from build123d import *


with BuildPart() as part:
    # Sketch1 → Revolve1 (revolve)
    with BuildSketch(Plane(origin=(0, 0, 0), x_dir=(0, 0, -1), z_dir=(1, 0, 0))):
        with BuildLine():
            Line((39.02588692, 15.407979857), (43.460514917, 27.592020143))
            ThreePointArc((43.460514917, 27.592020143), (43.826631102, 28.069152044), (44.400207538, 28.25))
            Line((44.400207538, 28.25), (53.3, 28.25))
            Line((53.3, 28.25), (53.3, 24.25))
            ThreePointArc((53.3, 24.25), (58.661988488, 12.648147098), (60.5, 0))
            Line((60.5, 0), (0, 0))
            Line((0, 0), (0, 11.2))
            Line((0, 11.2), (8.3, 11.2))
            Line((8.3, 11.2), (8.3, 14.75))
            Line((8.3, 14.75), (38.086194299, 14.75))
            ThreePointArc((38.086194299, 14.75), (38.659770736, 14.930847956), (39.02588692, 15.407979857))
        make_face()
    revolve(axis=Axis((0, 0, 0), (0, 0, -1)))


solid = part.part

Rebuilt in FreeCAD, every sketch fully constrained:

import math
import FreeCAD as App
import Part
import Sketcher
from FreeCAD import Vector
Q = App.Units.Quantity

doc = App.newDocument("Part")
body = doc.addObject("PartDesign::Body", "Body")

sketch1 = doc.addObject("Sketcher::SketchObject", "Sketch")
body.addObject(sketch1)
sketch1.AttachmentSupport = (doc.YZ_Plane, [""])
sketch1.MapMode = "FlatFace"
sketch1.addGeometry([
    Part.LineSegment(Vector(27.6, -43.5, 0), Vector(15.4, -39, 0)),
    Part.ArcOfCircle(Part.Circle(Vector(15.8, -38.1, 0), Vector(0, 0, 1), 1), math.radians(180), math.radians(250)),
    Part.LineSegment(Vector(14.8, -38.1, 0), Vector(14.8, -8.3, 0)),
    Part.LineSegment(Vector(14.8, -8.3, 0), Vector(11.2, -8.3, 0)),
    Part.LineSegment(Vector(11.2, -8.3, 0), Vector(11.2, 0, 0)),
    Part.LineSegment(Vector(11.2, 0, 0), Vector(0, 0, 0)),
    Part.LineSegment(Vector(0, 0, 0), Vector(0, -60.5, 0)),
    Part.ArcOfCircle(Part.Circle(Vector(0, -16.1, 0), Vector(0, 0, 1), 44.4), math.radians(-90), math.radians(-57)),
    Part.LineSegment(Vector(24.2, -53.3, 0), Vector(28.2, -53.3, 0)),
    Part.LineSegment(Vector(28.2, -53.3, 0), Vector(28.2, -44.4, 0)),
    Part.ArcOfCircle(Part.Circle(Vector(27.2, -44.4, 0), Vector(0, 0, 1), 1), math.radians(0), math.radians(70)),
], False)
sketch1.addConstraint([
    Sketcher.Constraint("Tangent", 0, 2, 1, 2),
    Sketcher.Constraint("Tangent", 1, 1, 2, 1),
    Sketcher.Constraint("Coincident", 2, 2, 3, 1),
    Sketcher.Constraint("Coincident", 3, 2, 4, 1),
    Sketcher.Constraint("Coincident", 4, 2, 5, 1),
    Sketcher.Constraint("Coincident", 5, 2, 6, 1),
    Sketcher.Constraint("Coincident", 6, 2, 7, 1),
    Sketcher.Constraint("Coincident", 7, 2, 8, 1),
    Sketcher.Constraint("Coincident", 8, 2, 9, 1),
    Sketcher.Constraint("Tangent", 9, 2, 10, 1),
    Sketcher.Constraint("Tangent", 10, 2, 0, 1),
    Sketcher.Constraint("Vertical", 2),
    Sketcher.Constraint("Horizontal", 3),
    Sketcher.Constraint("Vertical", 4),
    Sketcher.Constraint("Horizontal", 5),
    Sketcher.Constraint("Vertical", 6),
    Sketcher.Constraint("Horizontal", 8),
    Sketcher.Constraint("Vertical", 9),
    Sketcher.Constraint("Coincident", 5, 2, -1, 1),
    Sketcher.Constraint("Equal", 1, 10),
    Sketcher.Constraint("PointOnObject", 7, 3, -2),
    Sketcher.Constraint("Radius", 1, 1.0),
    Sketcher.Constraint("DistanceX", 8, 1, 8, 2, 4.0),
    Sketcher.Constraint("Angle", 0, Q("160 deg")),
    Sketcher.Constraint("DistanceX", 5, 2, 5, 1, 11.2),
    Sketcher.Constraint("DistanceY", 4, 1, 4, 2, 8.3),
    Sketcher.Constraint("DistanceY", 6, 2, 6, 1, 60.5),
    Sketcher.Constraint("DistanceX", 3, 2, 3, 1, 3.55),
    Sketcher.Constraint("DistanceY", 7, 2, -1, 1, 53.3),
    Sketcher.Constraint("DistanceX", 1, 3, 10, 3, 11.5),
    Sketcher.Constraint("DistanceY", 2, 1, 2, 2, 29.786194),
])
revolution = doc.addObject("PartDesign::Revolution", "Revolution")
body.addObject(revolution)
revolution.Profile = sketch1
revolution.ReferenceAxis = (sketch1, ["V_Axis"])
revolution.Angle = 360

doc.recompute()
